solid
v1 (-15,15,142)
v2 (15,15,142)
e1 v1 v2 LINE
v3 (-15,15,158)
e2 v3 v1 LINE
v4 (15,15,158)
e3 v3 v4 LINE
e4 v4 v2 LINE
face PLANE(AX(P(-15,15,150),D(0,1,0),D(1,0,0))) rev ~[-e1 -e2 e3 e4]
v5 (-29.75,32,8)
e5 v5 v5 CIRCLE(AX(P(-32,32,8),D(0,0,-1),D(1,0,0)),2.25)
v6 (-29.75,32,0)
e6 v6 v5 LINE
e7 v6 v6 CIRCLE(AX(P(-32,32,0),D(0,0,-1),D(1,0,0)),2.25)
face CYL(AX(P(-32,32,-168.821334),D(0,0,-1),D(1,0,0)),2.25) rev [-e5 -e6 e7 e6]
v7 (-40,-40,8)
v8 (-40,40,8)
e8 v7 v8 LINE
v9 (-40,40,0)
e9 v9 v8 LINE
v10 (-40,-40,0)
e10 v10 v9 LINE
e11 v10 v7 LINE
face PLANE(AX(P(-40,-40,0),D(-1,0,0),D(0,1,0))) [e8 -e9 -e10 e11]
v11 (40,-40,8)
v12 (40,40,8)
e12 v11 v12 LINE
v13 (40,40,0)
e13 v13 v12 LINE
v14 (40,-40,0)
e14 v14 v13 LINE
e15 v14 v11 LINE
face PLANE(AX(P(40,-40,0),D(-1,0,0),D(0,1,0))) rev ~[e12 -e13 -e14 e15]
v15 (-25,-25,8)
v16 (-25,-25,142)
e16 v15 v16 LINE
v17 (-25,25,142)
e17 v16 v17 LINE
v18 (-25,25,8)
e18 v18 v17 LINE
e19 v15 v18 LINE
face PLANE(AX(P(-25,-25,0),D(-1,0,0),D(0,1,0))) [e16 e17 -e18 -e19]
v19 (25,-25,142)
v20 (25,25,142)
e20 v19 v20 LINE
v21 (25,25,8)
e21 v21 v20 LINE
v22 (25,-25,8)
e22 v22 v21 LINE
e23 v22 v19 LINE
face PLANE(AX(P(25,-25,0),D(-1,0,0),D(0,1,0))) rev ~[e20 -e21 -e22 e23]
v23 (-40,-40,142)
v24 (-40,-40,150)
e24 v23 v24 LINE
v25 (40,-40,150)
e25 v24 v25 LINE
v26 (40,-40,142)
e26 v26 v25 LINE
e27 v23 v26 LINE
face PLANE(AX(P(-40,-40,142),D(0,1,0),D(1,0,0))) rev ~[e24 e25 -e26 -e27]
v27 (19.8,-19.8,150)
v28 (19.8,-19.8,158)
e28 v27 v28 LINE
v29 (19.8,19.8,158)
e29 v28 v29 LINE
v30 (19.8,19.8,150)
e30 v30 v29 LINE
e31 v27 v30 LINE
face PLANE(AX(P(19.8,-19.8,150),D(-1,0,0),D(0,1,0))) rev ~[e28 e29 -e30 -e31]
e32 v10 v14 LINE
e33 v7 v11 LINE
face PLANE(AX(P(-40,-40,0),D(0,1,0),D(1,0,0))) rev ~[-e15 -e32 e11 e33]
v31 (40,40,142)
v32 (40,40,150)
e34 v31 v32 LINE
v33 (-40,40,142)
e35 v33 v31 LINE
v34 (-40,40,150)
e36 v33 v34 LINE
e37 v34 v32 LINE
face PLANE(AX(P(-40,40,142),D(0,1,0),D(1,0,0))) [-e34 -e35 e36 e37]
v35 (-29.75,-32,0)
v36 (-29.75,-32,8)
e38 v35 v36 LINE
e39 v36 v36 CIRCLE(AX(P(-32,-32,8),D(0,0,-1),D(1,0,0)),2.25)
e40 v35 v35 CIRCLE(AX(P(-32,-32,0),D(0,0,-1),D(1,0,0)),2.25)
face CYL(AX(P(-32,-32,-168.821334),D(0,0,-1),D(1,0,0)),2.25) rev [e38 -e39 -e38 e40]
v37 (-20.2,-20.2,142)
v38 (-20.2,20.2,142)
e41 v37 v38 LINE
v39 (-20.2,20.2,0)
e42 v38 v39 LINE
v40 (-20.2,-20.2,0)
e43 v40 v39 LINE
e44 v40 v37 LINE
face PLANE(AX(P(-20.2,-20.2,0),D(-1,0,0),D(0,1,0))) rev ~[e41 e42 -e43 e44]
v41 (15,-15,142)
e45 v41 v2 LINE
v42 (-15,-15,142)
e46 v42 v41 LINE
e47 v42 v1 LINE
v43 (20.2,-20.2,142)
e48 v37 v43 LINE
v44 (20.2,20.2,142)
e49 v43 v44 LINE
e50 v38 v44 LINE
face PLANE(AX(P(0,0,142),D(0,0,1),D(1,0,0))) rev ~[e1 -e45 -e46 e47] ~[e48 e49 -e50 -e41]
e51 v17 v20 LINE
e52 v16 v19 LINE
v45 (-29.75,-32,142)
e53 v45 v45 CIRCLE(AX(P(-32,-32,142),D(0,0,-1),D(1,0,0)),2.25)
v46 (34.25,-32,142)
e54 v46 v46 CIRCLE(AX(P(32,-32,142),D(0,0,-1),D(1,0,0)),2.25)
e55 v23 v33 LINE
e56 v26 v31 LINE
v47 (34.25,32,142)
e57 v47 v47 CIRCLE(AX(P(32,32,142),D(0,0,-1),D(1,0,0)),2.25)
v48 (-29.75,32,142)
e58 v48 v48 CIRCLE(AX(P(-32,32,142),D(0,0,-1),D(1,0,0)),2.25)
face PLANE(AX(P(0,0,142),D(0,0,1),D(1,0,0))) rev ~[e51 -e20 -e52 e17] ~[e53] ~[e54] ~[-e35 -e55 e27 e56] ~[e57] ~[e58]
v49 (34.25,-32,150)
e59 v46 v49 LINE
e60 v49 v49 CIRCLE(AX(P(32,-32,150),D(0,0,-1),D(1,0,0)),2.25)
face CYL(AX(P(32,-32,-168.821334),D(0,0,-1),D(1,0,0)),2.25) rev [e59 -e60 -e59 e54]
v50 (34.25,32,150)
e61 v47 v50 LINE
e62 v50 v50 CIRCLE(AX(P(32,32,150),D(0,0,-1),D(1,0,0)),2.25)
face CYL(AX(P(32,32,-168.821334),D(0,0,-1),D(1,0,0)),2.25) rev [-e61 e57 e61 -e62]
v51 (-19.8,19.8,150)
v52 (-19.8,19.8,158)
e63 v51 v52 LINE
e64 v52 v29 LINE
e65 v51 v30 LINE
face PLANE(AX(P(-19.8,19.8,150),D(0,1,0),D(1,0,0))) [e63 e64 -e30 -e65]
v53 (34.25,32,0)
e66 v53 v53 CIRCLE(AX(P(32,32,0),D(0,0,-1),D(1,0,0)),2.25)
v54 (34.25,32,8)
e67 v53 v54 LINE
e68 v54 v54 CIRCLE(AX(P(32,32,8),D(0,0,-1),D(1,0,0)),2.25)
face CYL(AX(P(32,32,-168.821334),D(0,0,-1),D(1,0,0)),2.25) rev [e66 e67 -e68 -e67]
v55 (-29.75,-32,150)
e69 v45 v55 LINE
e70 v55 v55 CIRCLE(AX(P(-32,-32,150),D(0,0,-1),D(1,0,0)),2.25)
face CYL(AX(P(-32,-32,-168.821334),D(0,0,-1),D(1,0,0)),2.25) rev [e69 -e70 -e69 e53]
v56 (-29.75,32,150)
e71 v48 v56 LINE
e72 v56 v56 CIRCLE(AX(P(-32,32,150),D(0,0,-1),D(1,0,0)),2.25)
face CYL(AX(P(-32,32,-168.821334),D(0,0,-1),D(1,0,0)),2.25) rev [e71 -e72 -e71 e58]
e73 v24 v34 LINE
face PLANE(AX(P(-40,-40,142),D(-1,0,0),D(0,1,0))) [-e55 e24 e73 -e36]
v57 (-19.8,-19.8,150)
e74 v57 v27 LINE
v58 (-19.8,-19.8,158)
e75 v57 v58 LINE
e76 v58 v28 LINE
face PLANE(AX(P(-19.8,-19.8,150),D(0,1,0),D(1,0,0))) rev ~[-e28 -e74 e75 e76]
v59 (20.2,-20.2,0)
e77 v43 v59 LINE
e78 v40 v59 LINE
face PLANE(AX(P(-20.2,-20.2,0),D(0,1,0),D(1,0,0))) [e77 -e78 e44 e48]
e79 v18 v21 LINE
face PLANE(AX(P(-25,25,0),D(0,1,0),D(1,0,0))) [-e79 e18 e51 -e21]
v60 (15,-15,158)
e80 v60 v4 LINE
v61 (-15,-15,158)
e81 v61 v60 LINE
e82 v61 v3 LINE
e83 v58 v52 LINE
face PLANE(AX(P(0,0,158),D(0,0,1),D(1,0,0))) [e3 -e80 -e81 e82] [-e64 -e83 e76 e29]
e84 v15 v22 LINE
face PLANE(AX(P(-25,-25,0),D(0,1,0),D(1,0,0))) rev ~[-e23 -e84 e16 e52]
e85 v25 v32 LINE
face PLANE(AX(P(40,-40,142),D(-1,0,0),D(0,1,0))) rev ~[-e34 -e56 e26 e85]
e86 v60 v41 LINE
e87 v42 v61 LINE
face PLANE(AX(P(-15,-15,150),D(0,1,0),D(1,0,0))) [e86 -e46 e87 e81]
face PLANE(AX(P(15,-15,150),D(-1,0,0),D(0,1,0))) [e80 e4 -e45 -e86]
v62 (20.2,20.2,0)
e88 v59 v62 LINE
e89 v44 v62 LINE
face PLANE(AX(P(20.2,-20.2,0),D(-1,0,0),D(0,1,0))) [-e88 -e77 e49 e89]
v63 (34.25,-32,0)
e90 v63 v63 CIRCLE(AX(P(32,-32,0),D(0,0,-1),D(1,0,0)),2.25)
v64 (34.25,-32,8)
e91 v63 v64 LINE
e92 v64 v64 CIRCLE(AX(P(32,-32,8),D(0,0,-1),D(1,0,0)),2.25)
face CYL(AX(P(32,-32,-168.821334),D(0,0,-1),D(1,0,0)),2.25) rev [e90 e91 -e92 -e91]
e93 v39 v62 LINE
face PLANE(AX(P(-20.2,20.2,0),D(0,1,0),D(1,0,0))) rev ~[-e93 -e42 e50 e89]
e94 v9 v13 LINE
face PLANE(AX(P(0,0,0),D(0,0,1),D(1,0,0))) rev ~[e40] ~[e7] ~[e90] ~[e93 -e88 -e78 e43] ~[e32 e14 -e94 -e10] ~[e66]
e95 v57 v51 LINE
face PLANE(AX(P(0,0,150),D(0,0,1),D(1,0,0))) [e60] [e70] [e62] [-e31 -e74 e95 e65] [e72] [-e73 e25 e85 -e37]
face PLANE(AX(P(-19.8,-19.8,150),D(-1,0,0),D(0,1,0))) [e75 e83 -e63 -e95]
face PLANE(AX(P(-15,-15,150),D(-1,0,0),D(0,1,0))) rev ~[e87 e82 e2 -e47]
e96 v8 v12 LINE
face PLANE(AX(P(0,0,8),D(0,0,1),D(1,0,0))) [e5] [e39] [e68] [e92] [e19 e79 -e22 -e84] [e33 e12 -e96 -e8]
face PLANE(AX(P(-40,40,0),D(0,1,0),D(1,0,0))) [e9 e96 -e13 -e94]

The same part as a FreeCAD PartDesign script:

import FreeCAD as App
import Part
import Sketcher

V = App.Vector
Q = App.Units.Quantity

doc = App.newDocument("Part")
body = doc.addObject("PartDesign::Body", "Body")

# Sketch on XY plane
sketch1 = body.newObject("Sketcher::SketchObject", "Sketch")
sketch1.AttachmentSupport = (doc.getObject("XY_Plane"), [""])
sketch1.MapMode = "FlatFace"
sketch1.addGeometry([
    Part.LineSegment(V(-25, 25, 0), V(-25, -25, 0)),  # 0
    Part.LineSegment(V(-25, -25, 0), V(25, -25, 0)),  # 1
    Part.LineSegment(V(25, -25, 0), V(25, 25, 0)),  # 2
    Part.LineSegment(V(25, 25, 0), V(-25, 25, 0)),  # 3
    Part.LineSegment(V(20, -20, 0), V(-20, -20, 0)),  # 4
    Part.LineSegment(V(-20, -20, 0), V(-20, 20, 0)),  # 5
    Part.LineSegment(V(-20, 20, 0), V(20, 20, 0)),  # 6
    Part.LineSegment(V(20, 20, 0), V(20, -20, 0)),  # 7
], False)
sketch1.addConstraint([
    Sketcher.Constraint("Coincident", 0, 2, 1, 1),
    Sketcher.Constraint("Coincident", 1, 2, 2, 1),
    Sketcher.Constraint("Coincident", 2, 2, 3, 1),
    Sketcher.Constraint("Coincident", 3, 2, 0, 1),
    Sketcher.Constraint("Coincident", 4, 2, 5, 1),
    Sketcher.Constraint("Coincident", 5, 2, 6, 1),
    Sketcher.Constraint("Coincident", 6, 2, 7, 1),
    Sketcher.Constraint("Coincident", 7, 2, 4, 1),
    Sketcher.Constraint("Vertical", 0),
    Sketcher.Constraint("Horizontal", 1),
    Sketcher.Constraint("Vertical", 2),
    Sketcher.Constraint("Horizontal", 3),
    Sketcher.Constraint("Horizontal", 4),
    Sketcher.Constraint("Vertical", 5),
    Sketcher.Constraint("Horizontal", 6),
    Sketcher.Constraint("Vertical", 7),
    Sketcher.Constraint("Symmetric", 0, 2, 2, 2, -1, 1),
    Sketcher.Constraint("Symmetric", 4, 2, 6, 2, -1, 1),
    Sketcher.Constraint("Equal", 3, 0),
    Sketcher.Constraint("Equal", 6, 5),
    Sketcher.Constraint("DistanceX", 1, 1, 1, 2, Q("50 mm")),
    Sketcher.Constraint("DistanceX", 4, 2, 4, 1, Q("40.4 mm")),
])
pad1 = body.newObject("PartDesign::Pad", "Pad")
pad1.Profile = sketch1
pad1.Length = 150

# Sketch on XY plane
sketch2 = body.newObject("Sketcher::SketchObject", "Sketch001")
sketch2.AttachmentSupport = (doc.getObject("XY_Plane"), [""])
sketch2.MapMode = "FlatFace"
sketch2.addGeometry([
    Part.LineSegment(V(-40, 40, 0), V(-40, -40, 0)),  # 0
    Part.LineSegment(V(-40, -40, 0), V(40, -40, 0)),  # 1
    Part.LineSegment(V(40, -40, 0), V(40, 40, 0)),  # 2
    Part.LineSegment(V(40, 40, 0), V(-40, 40, 0)),  # 3
    Part.LineSegment(V(20, -20, 0), V(-20, -20, 0)),  # 4
    Part.LineSegment(V(-20, -20, 0), V(-20, 20, 0)),  # 5
    Part.LineSegment(V(-20, 20, 0), V(20, 20, 0)),  # 6
    Part.LineSegment(V(20, 20, 0), V(20, -20, 0)),  # 7
], False)
sketch2.addConstraint([
    Sketcher.Constraint("Coincident", 0, 2, 1, 1),
    Sketcher.Constraint("Coincident", 1, 2, 2, 1),
    Sketcher.Constraint("Coincident", 2, 2, 3, 1),
    Sketcher.Constraint("Coincident", 3, 2, 0, 1),
    Sketcher.Constraint("Coincident", 4, 2, 5, 1),
    Sketcher.Constraint("Coincident", 5, 2, 6, 1),
    Sketcher.Constraint("Coincident", 6, 2, 7, 1),
    Sketcher.Constraint("Coincident", 7, 2, 4, 1),
    Sketcher.Constraint("Vertical", 0),
    Sketcher.Constraint("Horizontal", 1),
    Sketcher.Constraint("Vertical", 2),
    Sketcher.Constraint("Horizontal", 3),
    Sketcher.Constraint("Horizontal", 4),
    Sketcher.Constraint("Vertical", 5),
    Sketcher.Constraint("Horizontal", 6),
    Sketcher.Constraint("Vertical", 7),
    Sketcher.Constraint("Symmetric", 0, 2, 2, 2, -1, 1),
    Sketcher.Constraint("Symmetric", 4, 2, 6, 2, -1, 1),
    Sketcher.Constraint("Equal", 3, 0),
    Sketcher.Constraint("Equal", 6, 5),
    Sketcher.Constraint("DistanceX", 1, 1, 1, 2, Q("80 mm")),
    Sketcher.Constraint("DistanceX", 4, 2, 4, 1, Q("40.4 mm")),
])
pad2 = body.newObject("PartDesign::Pad", "Pad001")
pad2.Profile = sketch2
pad2.Length = 8

# Sketch on XY plane
sketch3 = body.newObject("Sketcher::SketchObject", "Sketch002")
sketch3.AttachmentSupport = (doc.getObject("XY_Plane"), [""])
sketch3.MapMode = "FlatFace"
sketch3.AttachmentOffset = App.Placement(V(0, 0, 142), App.Rotation())
sketch3.addGeometry([
    Part.LineSegment(V(-40, 40, 0), V(-40, -40, 0)),  # 0
    Part.LineSegment(V(-40, -40, 0), V(40, -40, 0)),  # 1
    Part.LineSegment(V(40, -40, 0), V(40, 40, 0)),  # 2
    Part.LineSegment(V(40, 40, 0), V(-40, 40, 0)),  # 3
    Part.LineSegment(V(15, -15, 0), V(-15, -15, 0)),  # 4
    Part.LineSegment(V(-15, -15, 0), V(-15, 15, 0)),  # 5
    Part.LineSegment(V(-15, 15, 0), V(15, 15, 0)),  # 6
    Part.LineSegment(V(15, 15, 0), V(15, -15, 0)),  # 7
], False)
sketch3.addConstraint([
    Sketcher.Constraint("Coincident", 0, 2, 1, 1),
    Sketcher.Constraint("Coincident", 1, 2, 2, 1),
    Sketcher.Constraint("Coincident", 2, 2, 3, 1),
    Sketcher.Constraint("Coincident", 3, 2, 0, 1),
    Sketcher.Constraint("Coincident", 4, 2, 5, 1),
    Sketcher.Constraint("Coincident", 5, 2, 6, 1),
    Sketcher.Constraint("Coincident", 6, 2, 7, 1),
    Sketcher.Constraint("Coincident", 7, 2, 4, 1),
    Sketcher.Constraint("Vertical", 0),
    Sketcher.Constraint("Horizontal", 1),
    Sketcher.Constraint("Vertical", 2),
    Sketcher.Constraint("Horizontal", 3),
    Sketcher.Constraint("Horizontal", 4),
    Sketcher.Constraint("Vertical", 5),
    Sketcher.Constraint("Horizontal", 6),
    Sketcher.Constraint("Vertical", 7),
    Sketcher.Constraint("Symmetric", 0, 2, 2, 2, -1, 1),
    Sketcher.Constraint("Symmetric", 4, 2, 6, 2, -1, 1),
    Sketcher.Constraint("Equal", 3, 0),
    Sketcher.Constraint("Equal", 6, 5),
    Sketcher.Constraint("DistanceX", 1, 1, 1, 2, Q("80 mm")),
    Sketcher.Constraint("DistanceX", 4, 2, 4, 1, Q("30 mm")),
])
pad3 = body.newObject("PartDesign::Pad", "Pad002")
pad3.Profile = sketch3
pad3.Length = 8

# Sketch on XY plane
sketch4 = body.newObject("Sketcher::SketchObject", "Sketch003")
sketch4.AttachmentSupport = (doc.getObject("XY_Plane"), [""])
sketch4.MapMode = "FlatFace"
sketch4.AttachmentOffset = App.Placement(V(0, 0, 150), App.Rotation())
sketch4.addGeometry([
    Part.LineSegment(V(-20, 20, 0), V(-20, -20, 0)),  # 0
    Part.LineSegment(V(-20, -20, 0), V(20, -20, 0)),  # 1
    Part.LineSegment(V(20, -20, 0), V(20, 20, 0)),  # 2
    Part.LineSegment(V(20, 20, 0), V(-20, 20, 0)),  # 3
    Part.LineSegment(V(15, -15, 0), V(-15, -15, 0)),  # 4
    Part.LineSegment(V(-15, -15, 0), V(-15, 15, 0)),  # 5
    Part.LineSegment(V(-15, 15, 0), V(15, 15, 0)),  # 6
    Part.LineSegment(V(15, 15, 0), V(15, -15, 0)),  # 7
], False)
sketch4.addConstraint([
    Sketcher.Constraint("Coincident", 0, 2, 1, 1),
    Sketcher.Constraint("Coincident", 1, 2, 2, 1),
    Sketcher.Constraint("Coincident", 2, 2, 3, 1),
    Sketcher.Constraint("Coincident", 3, 2, 0, 1),
    Sketcher.Constraint("Coincident", 4, 2, 5, 1),
    Sketcher.Constraint("Coincident", 5, 2, 6, 1),
    Sketcher.Constraint("Coincident", 6, 2, 7, 1),
    Sketcher.Constraint("Coincident", 7, 2, 4, 1),
    Sketcher.Constraint("Vertical", 0),
    Sketcher.Constraint("Horizontal", 1),
    Sketcher.Constraint("Vertical", 2),
    Sketcher.Constraint("Horizontal", 3),
    Sketcher.Constraint("Horizontal", 4),
    Sketcher.Constraint("Vertical", 5),
    Sketcher.Constraint("Horizontal", 6),
    Sketcher.Constraint("Vertical", 7),
    Sketcher.Constraint("Symmetric", 0, 2, 2, 2, -1, 1),
    Sketcher.Constraint("Symmetric", 4, 2, 6, 2, -1, 1),
    Sketcher.Constraint("Equal", 3, 0),
    Sketcher.Constraint("Equal", 6, 5),
    Sketcher.Constraint("DistanceX", 4, 2, 4, 1, Q("30 mm")),
    Sketcher.Constraint("DistanceX", 1, 1, 1, 2, Q("39.6 mm")),
])
pad4 = body.newObject("PartDesign::Pad", "Pad003")
pad4.Profile = sketch4
pad4.Length = 8

# Sketch on XY plane
sketch5 = body.newObject("Sketcher::SketchObject", "Sketch004")
sketch5.AttachmentSupport = (doc.getObject("XY_Plane"), [""])
sketch5.MapMode = "FlatFace"
sketch5.addGeometry([
    Part.Circle(V(-32, -32, 0), V(0, 0, 1), 2.2),
    Part.Circle(V(-32, 32, 0), V(0, 0, 1), 2.2),
    Part.Circle(V(32, -32, 0), V(0, 0, 1), 2.2),
    Part.Circle(V(32, 32, 0), V(0, 0, 1), 2.2),
], False)
sketch5.addConstraint([
    Sketcher.Constraint("Equal", 0, 1),
    Sketcher.Constraint("Equal", 1, 2),
    Sketcher.Constraint("Equal", 2, 3),
    Sketcher.Constraint("Symmetric", 1, 3, 2, 3, -1, 1),
    Sketcher.Constraint("Symmetric", 0, 3, 3, 3, -1, 1),
    Sketcher.Constraint("Symmetric", 0, 3, 2, 3, -2),
    Sketcher.Constraint("Diameter", 0, Q("4.5 mm")),
    Sketcher.Constraint("DistanceX", 0, 3, -1, 1, Q("32 mm")),
    Sketcher.Constraint("DistanceY", 0, 3, -1, 1, Q("32 mm")),
])
pocket1 = body.newObject("PartDesign::Pocket", "Pocket")
pocket1.Profile = sketch5
pocket1.Type = "ThroughAll"
pocket1.Midplane = True

doc.recompute()
